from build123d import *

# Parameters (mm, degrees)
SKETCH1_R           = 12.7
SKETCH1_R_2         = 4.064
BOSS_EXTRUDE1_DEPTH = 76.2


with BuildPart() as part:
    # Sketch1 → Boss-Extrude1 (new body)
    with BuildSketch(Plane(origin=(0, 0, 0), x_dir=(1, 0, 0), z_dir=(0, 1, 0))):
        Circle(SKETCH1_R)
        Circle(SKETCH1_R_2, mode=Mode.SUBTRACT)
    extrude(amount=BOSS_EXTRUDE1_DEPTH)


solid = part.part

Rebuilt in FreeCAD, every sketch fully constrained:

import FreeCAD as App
import Part
import Sketcher

V = App.Vector
Q = App.Units.Quantity

doc = App.newDocument("Part")
body = doc.addObject("PartDesign::Body", "Body")

sketch1 = doc.addObject("Sketcher::SketchObject", "Sketch")
body.addObject(sketch1)
sketch1.AttachmentSupport = (doc.XZ_Plane, [""])
sketch1.MapMode = "FlatFace"
sketch1.addGeometry([
    Part.Circle(V(0, 0, 0), V(0, 0, 1), 12.7),
    Part.Circle(V(0, 0, 0), V(0, 0, 1), 4.1),
], False)
sketch1.addConstraint([
    Sketcher.Constraint("Coincident", 0, 3, -1, 1),
    Sketcher.Constraint("Coincident", 1, 3, -1, 1),
    Sketcher.Constraint("Diameter", 0, Q("1 in")),
    Sketcher.Constraint("Diameter", 1, Q("0.32 in")),
])
pad1 = doc.addObject("PartDesign::Pad", "Pad")
body.addObject(pad1)
pad1.Profile = sketch1
pad1.Length = Q("3 in")
pad1.Reversed = True

doc.recompute()
